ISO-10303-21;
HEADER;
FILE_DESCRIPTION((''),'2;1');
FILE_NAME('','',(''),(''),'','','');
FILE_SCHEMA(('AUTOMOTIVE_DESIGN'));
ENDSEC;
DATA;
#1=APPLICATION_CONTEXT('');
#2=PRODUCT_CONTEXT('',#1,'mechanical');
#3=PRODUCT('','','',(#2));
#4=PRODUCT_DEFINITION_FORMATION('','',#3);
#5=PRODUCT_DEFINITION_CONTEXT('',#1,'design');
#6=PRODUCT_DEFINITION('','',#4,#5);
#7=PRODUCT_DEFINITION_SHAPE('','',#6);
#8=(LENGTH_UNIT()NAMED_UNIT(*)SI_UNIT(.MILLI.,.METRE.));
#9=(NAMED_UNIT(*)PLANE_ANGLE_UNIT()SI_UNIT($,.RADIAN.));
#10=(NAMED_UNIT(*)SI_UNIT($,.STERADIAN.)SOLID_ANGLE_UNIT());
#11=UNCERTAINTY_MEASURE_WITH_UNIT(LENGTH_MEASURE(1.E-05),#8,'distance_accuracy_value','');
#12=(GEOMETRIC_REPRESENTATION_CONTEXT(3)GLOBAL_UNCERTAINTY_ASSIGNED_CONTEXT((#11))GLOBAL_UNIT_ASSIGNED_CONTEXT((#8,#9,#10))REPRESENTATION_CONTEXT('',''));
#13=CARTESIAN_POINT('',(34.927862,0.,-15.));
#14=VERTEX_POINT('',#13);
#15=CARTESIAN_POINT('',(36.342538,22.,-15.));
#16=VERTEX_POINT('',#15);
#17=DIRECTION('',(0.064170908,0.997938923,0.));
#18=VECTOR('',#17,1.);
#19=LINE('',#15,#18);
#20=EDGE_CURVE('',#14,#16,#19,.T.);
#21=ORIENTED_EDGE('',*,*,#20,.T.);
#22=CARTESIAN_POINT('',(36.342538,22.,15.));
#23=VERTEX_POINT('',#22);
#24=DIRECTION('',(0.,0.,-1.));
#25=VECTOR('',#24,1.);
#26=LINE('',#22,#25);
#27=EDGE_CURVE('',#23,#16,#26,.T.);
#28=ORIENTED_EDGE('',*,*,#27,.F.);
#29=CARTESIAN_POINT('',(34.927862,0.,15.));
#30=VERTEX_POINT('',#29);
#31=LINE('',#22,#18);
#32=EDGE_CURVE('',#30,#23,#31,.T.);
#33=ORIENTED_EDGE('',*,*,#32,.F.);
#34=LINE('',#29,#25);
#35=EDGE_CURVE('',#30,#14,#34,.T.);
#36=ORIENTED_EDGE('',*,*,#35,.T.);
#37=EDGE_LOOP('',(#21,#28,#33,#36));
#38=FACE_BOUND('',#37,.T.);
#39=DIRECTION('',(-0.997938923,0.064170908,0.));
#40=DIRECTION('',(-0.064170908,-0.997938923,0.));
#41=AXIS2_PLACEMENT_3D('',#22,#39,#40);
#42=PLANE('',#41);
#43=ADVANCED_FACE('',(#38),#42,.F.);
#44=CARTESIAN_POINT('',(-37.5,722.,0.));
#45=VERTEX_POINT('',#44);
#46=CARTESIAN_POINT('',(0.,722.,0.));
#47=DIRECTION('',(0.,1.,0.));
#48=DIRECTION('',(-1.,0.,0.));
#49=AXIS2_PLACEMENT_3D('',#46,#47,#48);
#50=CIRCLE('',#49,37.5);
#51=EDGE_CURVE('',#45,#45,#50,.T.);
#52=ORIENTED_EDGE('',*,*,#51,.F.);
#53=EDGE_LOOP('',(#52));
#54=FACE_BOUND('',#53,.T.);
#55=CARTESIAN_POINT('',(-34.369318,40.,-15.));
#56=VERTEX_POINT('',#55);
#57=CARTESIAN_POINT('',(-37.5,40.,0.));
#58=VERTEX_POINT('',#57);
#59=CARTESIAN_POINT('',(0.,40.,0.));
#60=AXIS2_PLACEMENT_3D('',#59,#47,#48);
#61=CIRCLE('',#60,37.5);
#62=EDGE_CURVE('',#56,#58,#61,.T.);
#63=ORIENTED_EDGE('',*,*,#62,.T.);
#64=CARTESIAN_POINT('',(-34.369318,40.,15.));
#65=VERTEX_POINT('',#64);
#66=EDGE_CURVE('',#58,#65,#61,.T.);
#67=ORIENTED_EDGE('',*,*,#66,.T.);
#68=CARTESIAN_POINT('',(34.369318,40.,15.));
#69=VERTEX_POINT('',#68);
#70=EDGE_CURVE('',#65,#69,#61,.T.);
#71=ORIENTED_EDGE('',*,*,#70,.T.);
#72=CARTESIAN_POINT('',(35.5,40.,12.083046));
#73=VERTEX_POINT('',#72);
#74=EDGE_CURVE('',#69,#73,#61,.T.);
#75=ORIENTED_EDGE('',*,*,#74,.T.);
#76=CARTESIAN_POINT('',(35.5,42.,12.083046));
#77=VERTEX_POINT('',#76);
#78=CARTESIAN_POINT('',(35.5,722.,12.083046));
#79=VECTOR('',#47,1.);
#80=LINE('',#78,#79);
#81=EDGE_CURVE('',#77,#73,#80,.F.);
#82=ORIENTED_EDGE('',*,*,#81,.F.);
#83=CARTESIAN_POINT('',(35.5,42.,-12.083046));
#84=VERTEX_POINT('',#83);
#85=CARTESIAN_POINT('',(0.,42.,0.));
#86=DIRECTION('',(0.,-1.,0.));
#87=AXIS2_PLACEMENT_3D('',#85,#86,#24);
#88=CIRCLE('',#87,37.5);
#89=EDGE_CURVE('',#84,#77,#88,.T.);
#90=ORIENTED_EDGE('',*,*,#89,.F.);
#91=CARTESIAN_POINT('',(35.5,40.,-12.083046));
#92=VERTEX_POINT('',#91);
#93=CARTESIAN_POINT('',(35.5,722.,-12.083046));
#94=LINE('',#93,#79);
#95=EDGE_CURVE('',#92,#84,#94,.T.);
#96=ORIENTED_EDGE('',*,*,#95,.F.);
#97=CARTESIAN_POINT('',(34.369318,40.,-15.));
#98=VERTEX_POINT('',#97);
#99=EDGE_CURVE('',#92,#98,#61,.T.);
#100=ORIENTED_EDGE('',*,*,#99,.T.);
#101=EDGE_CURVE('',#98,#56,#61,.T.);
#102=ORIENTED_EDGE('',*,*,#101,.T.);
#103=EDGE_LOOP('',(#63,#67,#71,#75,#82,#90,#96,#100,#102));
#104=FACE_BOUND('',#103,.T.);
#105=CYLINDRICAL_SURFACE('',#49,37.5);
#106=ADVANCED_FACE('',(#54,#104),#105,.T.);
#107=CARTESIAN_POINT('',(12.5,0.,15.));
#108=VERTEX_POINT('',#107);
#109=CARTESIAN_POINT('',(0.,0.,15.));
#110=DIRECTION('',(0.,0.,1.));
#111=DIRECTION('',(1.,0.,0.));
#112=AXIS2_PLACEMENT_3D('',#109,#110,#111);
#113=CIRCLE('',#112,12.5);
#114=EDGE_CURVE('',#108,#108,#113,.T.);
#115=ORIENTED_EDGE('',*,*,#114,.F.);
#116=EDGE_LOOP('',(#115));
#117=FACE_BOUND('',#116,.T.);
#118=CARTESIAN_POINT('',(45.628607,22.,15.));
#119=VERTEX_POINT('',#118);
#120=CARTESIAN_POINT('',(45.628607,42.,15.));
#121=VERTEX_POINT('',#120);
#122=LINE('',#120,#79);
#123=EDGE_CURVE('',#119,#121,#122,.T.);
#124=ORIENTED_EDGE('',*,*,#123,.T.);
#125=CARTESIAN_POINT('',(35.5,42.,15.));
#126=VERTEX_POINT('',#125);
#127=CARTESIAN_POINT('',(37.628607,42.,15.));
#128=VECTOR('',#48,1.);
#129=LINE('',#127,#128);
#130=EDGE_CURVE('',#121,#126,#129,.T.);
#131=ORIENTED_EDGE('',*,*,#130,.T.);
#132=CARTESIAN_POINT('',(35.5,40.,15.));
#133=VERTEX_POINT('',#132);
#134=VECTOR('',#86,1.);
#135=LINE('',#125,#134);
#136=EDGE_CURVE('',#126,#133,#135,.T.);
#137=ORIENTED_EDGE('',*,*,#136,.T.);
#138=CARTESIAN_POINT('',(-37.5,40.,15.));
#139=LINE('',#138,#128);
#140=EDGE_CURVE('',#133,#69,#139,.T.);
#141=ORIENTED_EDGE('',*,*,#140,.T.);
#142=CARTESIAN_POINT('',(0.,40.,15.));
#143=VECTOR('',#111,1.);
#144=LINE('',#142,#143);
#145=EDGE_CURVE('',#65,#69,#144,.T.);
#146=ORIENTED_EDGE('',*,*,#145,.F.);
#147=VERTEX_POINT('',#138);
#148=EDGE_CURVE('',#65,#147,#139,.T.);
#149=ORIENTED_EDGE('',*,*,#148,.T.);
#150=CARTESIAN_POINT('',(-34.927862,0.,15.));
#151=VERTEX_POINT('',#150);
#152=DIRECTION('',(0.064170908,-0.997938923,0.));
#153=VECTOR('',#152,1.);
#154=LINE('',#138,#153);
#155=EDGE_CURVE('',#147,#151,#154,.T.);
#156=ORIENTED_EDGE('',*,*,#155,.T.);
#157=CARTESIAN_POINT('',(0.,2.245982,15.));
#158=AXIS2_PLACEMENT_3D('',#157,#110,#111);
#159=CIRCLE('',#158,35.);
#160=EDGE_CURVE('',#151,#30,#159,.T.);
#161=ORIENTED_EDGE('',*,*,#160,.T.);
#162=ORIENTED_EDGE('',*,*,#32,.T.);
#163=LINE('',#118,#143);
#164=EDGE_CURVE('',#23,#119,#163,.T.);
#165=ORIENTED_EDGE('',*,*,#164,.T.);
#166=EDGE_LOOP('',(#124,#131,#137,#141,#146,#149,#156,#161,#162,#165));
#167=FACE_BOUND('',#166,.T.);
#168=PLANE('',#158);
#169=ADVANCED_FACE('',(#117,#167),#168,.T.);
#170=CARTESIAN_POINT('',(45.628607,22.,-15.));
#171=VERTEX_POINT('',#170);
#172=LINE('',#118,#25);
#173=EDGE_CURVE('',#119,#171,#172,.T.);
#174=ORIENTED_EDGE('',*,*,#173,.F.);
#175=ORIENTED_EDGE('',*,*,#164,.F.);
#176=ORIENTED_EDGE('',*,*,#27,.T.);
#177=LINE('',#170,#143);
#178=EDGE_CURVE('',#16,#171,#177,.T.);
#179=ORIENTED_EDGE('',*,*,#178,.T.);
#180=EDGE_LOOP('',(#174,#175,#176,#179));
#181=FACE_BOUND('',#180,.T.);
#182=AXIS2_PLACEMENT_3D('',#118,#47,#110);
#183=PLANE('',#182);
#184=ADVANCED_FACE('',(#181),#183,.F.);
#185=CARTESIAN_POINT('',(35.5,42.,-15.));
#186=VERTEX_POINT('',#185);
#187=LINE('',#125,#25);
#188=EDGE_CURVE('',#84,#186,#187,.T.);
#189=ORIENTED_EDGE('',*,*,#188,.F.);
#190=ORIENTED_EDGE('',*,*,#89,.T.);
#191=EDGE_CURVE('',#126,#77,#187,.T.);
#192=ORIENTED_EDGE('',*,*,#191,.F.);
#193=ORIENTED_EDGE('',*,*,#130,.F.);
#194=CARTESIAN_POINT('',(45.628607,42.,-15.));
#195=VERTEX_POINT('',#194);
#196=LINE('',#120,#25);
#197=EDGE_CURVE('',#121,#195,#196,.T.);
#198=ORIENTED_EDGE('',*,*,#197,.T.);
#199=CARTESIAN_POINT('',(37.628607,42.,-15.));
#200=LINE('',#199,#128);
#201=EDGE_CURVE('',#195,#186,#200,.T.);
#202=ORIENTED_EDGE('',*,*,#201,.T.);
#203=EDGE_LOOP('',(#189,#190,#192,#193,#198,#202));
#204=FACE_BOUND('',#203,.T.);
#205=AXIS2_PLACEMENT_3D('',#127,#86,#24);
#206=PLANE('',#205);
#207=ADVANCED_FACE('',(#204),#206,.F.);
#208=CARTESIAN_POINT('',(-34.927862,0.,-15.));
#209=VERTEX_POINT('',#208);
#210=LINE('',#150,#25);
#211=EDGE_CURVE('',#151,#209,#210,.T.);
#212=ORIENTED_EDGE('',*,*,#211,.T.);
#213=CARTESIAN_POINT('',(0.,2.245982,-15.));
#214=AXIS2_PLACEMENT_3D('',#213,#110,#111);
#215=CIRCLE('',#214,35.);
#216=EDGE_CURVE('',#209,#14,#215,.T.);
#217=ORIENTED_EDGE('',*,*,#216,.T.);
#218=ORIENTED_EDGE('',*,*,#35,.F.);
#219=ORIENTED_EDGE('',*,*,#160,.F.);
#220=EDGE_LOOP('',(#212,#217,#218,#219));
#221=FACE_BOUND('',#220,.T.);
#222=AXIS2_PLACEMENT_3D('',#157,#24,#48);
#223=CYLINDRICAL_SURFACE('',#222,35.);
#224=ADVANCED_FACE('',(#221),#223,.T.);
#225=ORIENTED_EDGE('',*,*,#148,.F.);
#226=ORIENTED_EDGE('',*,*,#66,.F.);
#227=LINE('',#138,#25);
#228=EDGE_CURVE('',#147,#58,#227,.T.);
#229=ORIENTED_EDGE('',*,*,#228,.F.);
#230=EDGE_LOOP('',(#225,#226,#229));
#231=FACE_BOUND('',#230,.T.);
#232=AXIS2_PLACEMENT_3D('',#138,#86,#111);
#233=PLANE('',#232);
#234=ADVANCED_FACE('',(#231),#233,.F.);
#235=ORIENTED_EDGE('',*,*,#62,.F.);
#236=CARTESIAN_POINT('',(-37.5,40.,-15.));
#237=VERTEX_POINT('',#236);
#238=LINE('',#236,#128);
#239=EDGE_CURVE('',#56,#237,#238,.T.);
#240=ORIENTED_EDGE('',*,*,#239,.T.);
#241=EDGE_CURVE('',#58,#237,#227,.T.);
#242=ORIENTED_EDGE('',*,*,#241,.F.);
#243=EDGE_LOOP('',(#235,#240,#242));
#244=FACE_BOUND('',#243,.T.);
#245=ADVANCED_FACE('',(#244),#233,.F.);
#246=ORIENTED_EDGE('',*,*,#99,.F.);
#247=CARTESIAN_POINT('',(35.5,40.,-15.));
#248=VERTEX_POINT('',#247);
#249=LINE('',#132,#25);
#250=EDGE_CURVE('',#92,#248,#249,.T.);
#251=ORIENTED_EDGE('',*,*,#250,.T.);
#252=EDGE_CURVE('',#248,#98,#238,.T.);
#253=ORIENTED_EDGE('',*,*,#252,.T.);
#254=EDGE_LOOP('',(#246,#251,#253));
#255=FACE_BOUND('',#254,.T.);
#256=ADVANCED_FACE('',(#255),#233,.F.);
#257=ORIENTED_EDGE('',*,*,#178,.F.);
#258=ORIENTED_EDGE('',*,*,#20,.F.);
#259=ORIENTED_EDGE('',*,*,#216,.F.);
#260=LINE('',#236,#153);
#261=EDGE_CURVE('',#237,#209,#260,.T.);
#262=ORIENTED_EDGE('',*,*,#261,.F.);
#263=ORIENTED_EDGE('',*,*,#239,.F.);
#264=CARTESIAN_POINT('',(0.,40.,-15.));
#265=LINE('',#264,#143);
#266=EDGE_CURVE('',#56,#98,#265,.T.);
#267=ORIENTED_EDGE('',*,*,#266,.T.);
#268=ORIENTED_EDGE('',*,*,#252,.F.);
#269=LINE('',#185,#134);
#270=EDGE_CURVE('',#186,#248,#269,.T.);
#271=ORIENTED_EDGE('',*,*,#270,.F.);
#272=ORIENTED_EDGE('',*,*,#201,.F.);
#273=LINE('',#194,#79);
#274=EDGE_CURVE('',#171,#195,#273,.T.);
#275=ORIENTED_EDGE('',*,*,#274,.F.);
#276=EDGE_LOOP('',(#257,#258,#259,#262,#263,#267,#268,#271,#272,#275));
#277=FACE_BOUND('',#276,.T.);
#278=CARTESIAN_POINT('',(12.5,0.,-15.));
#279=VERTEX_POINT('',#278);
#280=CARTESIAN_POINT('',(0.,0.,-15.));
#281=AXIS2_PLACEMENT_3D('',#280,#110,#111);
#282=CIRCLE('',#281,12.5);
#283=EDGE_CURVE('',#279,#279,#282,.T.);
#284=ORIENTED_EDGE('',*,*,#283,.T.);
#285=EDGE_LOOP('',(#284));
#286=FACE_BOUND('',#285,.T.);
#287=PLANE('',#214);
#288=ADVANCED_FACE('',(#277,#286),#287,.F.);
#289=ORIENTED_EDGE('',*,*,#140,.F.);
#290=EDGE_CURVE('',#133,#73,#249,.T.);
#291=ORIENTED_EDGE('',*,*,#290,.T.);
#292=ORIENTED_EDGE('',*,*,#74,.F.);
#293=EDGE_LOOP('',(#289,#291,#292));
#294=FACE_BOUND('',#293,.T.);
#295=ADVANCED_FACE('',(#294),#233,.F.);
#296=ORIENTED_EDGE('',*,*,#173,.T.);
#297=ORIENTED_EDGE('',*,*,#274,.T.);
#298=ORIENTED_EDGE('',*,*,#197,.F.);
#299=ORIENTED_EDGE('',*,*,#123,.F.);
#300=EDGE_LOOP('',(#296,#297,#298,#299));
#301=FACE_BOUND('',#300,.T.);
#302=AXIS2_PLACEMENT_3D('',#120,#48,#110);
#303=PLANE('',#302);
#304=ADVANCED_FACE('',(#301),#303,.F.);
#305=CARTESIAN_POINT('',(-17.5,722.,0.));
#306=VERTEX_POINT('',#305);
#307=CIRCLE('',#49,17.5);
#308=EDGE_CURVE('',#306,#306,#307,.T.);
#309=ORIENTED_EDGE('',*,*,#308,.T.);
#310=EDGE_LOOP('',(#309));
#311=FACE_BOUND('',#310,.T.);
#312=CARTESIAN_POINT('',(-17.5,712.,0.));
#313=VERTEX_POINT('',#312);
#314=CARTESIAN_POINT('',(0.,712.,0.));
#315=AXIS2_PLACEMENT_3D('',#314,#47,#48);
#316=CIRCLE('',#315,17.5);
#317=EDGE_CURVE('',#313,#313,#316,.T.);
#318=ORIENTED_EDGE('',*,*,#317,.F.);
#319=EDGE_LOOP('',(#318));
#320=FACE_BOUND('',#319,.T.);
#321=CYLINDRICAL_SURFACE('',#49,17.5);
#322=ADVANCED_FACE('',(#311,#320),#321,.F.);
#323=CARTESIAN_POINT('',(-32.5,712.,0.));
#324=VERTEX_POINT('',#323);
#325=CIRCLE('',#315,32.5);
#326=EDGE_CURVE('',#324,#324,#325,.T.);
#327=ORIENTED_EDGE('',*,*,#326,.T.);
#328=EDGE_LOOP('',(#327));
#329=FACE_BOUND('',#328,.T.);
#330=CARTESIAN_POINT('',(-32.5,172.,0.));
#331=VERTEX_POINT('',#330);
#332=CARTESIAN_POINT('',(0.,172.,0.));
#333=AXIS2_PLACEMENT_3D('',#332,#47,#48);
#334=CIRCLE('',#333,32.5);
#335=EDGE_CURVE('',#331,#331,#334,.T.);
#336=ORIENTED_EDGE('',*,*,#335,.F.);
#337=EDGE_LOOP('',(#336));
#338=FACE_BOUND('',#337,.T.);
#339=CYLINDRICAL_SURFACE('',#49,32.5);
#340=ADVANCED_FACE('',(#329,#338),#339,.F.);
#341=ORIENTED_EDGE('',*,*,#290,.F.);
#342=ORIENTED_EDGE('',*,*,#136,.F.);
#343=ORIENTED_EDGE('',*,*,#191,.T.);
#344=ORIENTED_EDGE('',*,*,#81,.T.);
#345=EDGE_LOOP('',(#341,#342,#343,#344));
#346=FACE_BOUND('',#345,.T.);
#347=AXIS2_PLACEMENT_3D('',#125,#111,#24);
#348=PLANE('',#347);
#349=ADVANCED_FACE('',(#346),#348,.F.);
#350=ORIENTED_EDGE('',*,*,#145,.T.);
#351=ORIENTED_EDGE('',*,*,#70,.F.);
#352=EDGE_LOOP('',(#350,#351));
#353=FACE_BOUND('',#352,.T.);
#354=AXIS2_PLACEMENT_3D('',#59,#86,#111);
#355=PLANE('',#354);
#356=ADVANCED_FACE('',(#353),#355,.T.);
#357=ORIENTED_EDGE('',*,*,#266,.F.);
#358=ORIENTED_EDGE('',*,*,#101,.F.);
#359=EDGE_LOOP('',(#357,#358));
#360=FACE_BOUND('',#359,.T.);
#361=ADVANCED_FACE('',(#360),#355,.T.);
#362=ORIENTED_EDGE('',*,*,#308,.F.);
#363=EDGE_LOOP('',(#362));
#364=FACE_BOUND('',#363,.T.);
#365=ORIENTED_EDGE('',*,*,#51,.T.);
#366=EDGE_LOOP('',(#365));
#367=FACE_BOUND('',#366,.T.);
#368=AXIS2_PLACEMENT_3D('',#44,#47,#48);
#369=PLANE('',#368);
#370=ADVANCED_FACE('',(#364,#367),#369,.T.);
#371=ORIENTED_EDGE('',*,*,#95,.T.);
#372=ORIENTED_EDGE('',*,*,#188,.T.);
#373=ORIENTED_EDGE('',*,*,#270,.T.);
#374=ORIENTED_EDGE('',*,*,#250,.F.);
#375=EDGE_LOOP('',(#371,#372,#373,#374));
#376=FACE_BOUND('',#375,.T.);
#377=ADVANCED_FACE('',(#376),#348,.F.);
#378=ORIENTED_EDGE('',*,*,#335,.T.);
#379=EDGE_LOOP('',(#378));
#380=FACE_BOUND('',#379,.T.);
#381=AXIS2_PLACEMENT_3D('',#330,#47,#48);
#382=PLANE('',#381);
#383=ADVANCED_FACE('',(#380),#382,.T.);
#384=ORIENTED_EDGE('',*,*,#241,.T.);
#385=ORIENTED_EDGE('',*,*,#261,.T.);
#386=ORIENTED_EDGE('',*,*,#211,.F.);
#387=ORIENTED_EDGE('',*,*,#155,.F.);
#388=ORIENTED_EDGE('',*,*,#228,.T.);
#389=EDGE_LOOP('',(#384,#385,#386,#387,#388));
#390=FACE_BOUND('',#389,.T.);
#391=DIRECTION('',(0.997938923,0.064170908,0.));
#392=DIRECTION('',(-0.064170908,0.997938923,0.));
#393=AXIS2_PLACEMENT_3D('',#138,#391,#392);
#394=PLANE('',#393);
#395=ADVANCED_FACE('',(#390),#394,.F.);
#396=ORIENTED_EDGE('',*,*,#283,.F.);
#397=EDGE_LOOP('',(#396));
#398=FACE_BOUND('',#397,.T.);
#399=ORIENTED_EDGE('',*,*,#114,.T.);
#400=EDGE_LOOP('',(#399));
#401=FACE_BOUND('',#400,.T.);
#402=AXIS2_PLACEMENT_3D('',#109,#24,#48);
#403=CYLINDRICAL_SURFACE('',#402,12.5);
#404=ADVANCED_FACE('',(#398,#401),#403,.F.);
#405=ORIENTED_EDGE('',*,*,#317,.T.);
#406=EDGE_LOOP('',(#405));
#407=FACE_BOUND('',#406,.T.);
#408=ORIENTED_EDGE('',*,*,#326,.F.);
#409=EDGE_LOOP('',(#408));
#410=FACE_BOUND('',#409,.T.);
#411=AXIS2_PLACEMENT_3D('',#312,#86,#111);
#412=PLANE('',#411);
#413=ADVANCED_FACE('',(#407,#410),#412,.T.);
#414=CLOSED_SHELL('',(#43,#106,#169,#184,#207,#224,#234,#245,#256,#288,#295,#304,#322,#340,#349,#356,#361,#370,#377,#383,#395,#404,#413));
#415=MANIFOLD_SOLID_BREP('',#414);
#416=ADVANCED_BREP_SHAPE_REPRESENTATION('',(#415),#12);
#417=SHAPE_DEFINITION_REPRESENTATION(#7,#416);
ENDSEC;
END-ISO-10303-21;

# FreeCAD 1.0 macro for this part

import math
import FreeCAD as App
import Part
import Sketcher

V = App.Vector


def add_polygon(sketch, points):
    """Adds a closed chain of lines whose ends are joined by coincident constraints."""
    first, n = sketch.GeometryCount, len(points)
    for a, b in zip(points, points[1:] + points[:1]):
        sketch.addGeometry(Part.LineSegment(App.Vector(*a, 0), App.Vector(*b, 0)), False)
    for i in range(n):
        sketch.addConstraint(Sketcher.Constraint("Coincident", first + i, 2, first + (i + 1) % n, 1))

doc = App.newDocument("Part")
body = doc.addObject("PartDesign::Body", "Body")

# Sketch on XY plane
sketch1 = body.newObject("Sketcher::SketchObject", "Sketch")
sketch1.AttachmentSupport = (doc.getObject("XY_Plane"), [""])
sketch1.MapMode = "FlatFace"
sketch1.addGeometry([
    Part.LineSegment(V(35.5, 42, 0), V(35.5, 40, 0)),  # 0
    Part.LineSegment(V(35.5, 40, 0), V(-37.5, 40, 0)),  # 1
    Part.LineSegment(V(-37.5, 40, 0), V(-34.9, 0, 0)),  # 2
    Part.ArcOfCircle(Part.Circle(V(0, 2.2, 0), V(0, 0, 1), 35), math.radians(-176), math.radians(-4)),  # 3
    Part.LineSegment(V(34.9, 0, 0), V(36.3, 22, 0)),  # 4
    Part.LineSegment(V(36.3, 22, 0), V(45.6, 22, 0)),  # 5
    Part.LineSegment(V(45.6, 22, 0), V(45.6, 42, 0)),  # 6
    Part.LineSegment(V(45.6, 42, 0), V(35.5, 42, 0)),  # 7
    Part.Circle(V(0, 0, 0), V(0, 0, 1), 12.5),  # 8
], False)
sketch1.addConstraint([
    Sketcher.Constraint("Coincident", 0, 2, 1, 1),
    Sketcher.Constraint("Coincident", 1, 2, 2, 1),
    Sketcher.Constraint("Tangent", 2, 2, 3, 1),
    Sketcher.Constraint("Tangent", 3, 2, 4, 1),
    Sketcher.Constraint("Coincident", 4, 2, 5, 1),
    Sketcher.Constraint("Coincident", 5, 2, 6, 1),
    Sketcher.Constraint("Coincident", 6, 2, 7, 1),
    Sketcher.Constraint("Coincident", 7, 2, 0, 1),
    Sketcher.Constraint("Vertical", 0),
    Sketcher.Constraint("Horizontal", 1),
    Sketcher.Constraint("Horizontal", 5),
    Sketcher.Constraint("Vertical", 6),
    Sketcher.Constraint("Horizontal", 7),
    Sketcher.Constraint("Coincident", 8, 3, -1, 1),
    Sketcher.Constraint("Symmetric", 2, 2, 3, 2, -1, 1),
    Sketcher.Constraint("PointOnObject", 3, 3, -2),
    Sketcher.Constraint("Diameter", 8, 25.0),
    Sketcher.Constraint("Radius", 3, 35.0),
    Sketcher.Constraint("DistanceX", 1, 2, 1, 1, 73.0),
    Sketcher.Constraint("DistanceY", 0, 2, 0, 1, 2.0),
    Sketcher.Constraint("DistanceY", 6, 1, 6, 2, 20.0),
    Sketcher.Constraint("DistanceY", -1, 1, 0, 2, 40.0),
    Sketcher.Constraint("DistanceX", -1, 1, 0, 2, 35.5),
    Sketcher.Constraint("DistanceX", 5, 1, 5, 2, 9.286069),
])
pad1 = body.newObject("PartDesign::Pad", "Pad")
pad1.Profile = sketch1
pad1.Length = 30
pad1.Midplane = True

# Sketch on XY plane
sketch2 = body.newObject("Sketcher::SketchObject", "Sketch001")
sketch2.AttachmentSupport = (doc.getObject("XY_Plane"), [""])
sketch2.MapMode = "FlatFace"
add_polygon(sketch2, [(-18, 722), (-38, 722), (-38, 40), (0, 40), (0, 172), (-32, 172), (-32, 712), (-18, 712)])  # lines 0-7
sketch2.addConstraint([
    Sketcher.Constraint("Horizontal", 0),
    Sketcher.Constraint("Vertical", 1),
    Sketcher.Constraint("Horizontal", 2),
    Sketcher.Constraint("Vertical", 3),
    Sketcher.Constraint("Horizontal", 4),
    Sketcher.Constraint("Vertical", 5),
    Sketcher.Constraint("Horizontal", 6),
    Sketcher.Constraint("Vertical", 7),
    Sketcher.Constraint("PointOnObject", 2, 2, -2),
    Sketcher.Constraint("DistanceX", 0, 2, 0, 1, 20.0),
    Sketcher.Constraint("DistanceX", 6, 1, 6, 2, 15.0),
    Sketcher.Constraint("DistanceY", 1, 2, 1, 1, 682.0),
    Sketcher.Constraint("DistanceY", 3, 1, 3, 2, 132.0),
    Sketcher.Constraint("DistanceY", 5, 1, 5, 2, 540.0),
    Sketcher.Constraint("DistanceX", 2, 1, 2, 2, 37.5),
    Sketcher.Constraint("DistanceY", -1, 1, 0, 2, 722.0),
])
revolution = body.newObject("PartDesign::Revolution", "Revolution")
revolution.Profile = sketch2
revolution.ReferenceAxis = (sketch2, ["V_Axis"])
revolution.Angle = 360

doc.recompute()
